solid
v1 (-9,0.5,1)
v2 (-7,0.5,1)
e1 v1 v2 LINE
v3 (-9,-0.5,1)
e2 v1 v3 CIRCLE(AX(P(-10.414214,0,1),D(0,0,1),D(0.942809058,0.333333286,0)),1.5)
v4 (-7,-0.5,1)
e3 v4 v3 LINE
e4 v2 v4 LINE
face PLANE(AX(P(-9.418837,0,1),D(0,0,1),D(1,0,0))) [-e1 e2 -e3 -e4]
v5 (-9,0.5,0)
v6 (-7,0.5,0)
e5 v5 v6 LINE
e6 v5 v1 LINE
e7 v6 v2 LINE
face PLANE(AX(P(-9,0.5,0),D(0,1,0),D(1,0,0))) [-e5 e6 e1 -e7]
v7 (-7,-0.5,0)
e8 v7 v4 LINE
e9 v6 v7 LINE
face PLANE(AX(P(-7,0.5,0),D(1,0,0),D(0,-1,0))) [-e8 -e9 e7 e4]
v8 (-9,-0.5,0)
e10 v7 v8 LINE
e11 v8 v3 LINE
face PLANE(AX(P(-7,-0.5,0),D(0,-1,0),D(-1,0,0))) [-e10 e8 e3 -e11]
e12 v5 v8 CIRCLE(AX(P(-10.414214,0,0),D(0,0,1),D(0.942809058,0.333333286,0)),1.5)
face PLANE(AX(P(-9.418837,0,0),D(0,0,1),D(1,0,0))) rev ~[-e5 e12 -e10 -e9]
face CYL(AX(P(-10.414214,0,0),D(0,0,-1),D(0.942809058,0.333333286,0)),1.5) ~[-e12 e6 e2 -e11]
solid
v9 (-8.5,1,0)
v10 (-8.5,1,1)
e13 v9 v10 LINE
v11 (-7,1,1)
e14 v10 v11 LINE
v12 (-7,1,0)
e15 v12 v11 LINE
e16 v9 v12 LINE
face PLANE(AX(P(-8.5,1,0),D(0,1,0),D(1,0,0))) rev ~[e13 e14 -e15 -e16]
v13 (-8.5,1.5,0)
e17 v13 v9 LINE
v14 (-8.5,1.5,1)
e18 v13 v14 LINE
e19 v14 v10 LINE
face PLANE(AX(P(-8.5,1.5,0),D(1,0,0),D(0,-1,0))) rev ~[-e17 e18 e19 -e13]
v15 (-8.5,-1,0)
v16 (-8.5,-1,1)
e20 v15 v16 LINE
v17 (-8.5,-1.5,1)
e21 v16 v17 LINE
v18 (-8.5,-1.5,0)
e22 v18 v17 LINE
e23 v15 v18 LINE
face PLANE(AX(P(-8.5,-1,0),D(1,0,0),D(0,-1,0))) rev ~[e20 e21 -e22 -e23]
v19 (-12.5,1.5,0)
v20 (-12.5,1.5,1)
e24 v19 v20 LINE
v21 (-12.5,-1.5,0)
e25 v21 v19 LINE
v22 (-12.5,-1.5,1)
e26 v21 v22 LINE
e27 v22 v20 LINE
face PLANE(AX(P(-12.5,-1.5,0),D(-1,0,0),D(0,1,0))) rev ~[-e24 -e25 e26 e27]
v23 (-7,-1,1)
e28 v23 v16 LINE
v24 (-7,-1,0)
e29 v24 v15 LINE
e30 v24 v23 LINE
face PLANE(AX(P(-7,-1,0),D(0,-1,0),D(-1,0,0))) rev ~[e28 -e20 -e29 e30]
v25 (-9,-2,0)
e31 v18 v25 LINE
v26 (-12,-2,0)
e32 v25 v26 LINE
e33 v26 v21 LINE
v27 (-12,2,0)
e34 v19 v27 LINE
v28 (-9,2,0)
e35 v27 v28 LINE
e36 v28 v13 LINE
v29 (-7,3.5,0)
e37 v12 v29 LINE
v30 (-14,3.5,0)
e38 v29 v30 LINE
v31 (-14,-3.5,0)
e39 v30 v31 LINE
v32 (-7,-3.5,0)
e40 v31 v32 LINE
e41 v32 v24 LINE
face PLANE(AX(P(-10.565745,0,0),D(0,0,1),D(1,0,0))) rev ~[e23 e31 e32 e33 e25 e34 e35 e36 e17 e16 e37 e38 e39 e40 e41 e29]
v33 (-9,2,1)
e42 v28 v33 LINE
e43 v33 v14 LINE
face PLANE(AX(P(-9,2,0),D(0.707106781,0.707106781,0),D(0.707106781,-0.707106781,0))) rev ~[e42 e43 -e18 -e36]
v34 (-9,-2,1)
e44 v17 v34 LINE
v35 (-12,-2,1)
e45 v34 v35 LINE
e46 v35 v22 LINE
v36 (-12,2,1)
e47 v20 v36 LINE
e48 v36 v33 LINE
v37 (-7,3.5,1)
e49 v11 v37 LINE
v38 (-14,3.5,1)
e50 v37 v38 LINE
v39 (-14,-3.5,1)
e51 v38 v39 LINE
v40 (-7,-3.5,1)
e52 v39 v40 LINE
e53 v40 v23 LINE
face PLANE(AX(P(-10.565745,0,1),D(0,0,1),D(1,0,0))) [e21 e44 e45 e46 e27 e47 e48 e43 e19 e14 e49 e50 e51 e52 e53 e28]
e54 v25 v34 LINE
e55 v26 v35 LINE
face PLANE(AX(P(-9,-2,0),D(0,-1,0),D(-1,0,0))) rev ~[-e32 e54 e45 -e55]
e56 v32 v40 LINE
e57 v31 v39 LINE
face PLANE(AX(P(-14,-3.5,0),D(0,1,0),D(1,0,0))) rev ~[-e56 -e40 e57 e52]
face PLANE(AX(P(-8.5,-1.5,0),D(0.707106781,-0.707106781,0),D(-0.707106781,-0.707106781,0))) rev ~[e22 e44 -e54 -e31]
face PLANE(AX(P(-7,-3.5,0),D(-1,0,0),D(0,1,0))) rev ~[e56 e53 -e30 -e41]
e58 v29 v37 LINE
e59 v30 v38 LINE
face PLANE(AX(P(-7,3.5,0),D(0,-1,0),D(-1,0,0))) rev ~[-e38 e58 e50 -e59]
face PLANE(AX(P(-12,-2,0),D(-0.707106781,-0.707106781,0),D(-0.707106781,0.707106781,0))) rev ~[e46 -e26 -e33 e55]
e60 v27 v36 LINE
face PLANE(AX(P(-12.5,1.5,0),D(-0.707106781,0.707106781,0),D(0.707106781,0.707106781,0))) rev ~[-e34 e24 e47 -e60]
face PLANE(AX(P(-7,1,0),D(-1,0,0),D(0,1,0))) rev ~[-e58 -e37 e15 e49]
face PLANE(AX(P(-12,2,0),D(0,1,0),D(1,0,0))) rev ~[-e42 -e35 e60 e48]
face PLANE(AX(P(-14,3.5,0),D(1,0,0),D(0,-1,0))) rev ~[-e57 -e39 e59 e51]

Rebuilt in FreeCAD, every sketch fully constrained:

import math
import FreeCAD as App
import Part
import Sketcher
from FreeCAD import Vector
Q = App.Units.Quantity

doc = App.newDocument("Part")
body = doc.addObject("PartDesign::Body", "Body")

sketch1 = body.newObject("Sketcher::SketchObject", "Sketch")
sketch1.AttachmentSupport = (doc.getObject("XY_Plane"), [""])
sketch1.MapMode = "FlatFace"
sketch1.addGeometry([
    Part.LineSegment(Vector(-8.5, 1, 0), Vector(-7, 1, 0)),
    Part.LineSegment(Vector(-7, 1, 0), Vector(-7, 3.5, 0)),
    Part.LineSegment(Vector(-7, 3.5, 0), Vector(-14, 3.5, 0)),
    Part.LineSegment(Vector(-14, 3.5, 0), Vector(-14, -3.5, 0)),
    Part.LineSegment(Vector(-14, -3.5, 0), Vector(-7, -3.5, 0)),
    Part.LineSegment(Vector(-7, -3.5, 0), Vector(-7, -1, 0)),
    Part.LineSegment(Vector(-7, -1, 0), Vector(-8.5, -1, 0)),
    Part.LineSegment(Vector(-8.5, -1, 0), Vector(-8.5, -1.5, 0)),
    Part.LineSegment(Vector(-8.5, -1.5, 0), Vector(-9, -2, 0)),
    Part.LineSegment(Vector(-9, -2, 0), Vector(-12, -2, 0)),
    Part.LineSegment(Vector(-12, -2, 0), Vector(-12.5, -1.5, 0)),
    Part.LineSegment(Vector(-12.5, -1.5, 0), Vector(-12.5, 1.5, 0)),
    Part.LineSegment(Vector(-12.5, 1.5, 0), Vector(-12, 2, 0)),
    Part.LineSegment(Vector(-12, 2, 0), Vector(-9, 2, 0)),
    Part.LineSegment(Vector(-9, 2, 0), Vector(-8.5, 1.5, 0)),
    Part.LineSegment(Vector(-8.5, 1.5, 0), Vector(-8.5, 1, 0)),
], False)
sketch1.addConstraint([
    Sketcher.Constraint("Coincident", 0, 2, 1, 1),
    Sketcher.Constraint("Coincident", 1, 2, 2, 1),
    Sketcher.Constraint("Coincident", 2, 2, 3, 1),
    Sketcher.Constraint("Coincident", 3, 2, 4, 1),
    Sketcher.Constraint("Coincident", 4, 2, 5, 1),
    Sketcher.Constraint("Coincident", 5, 2, 6, 1),
    Sketcher.Constraint("Coincident", 6, 2, 7, 1),
    Sketcher.Constraint("Coincident", 7, 2, 8, 1),
    Sketcher.Constraint("Coincident", 8, 2, 9, 1),
    Sketcher.Constraint("Coincident", 9, 2, 10, 1),
    Sketcher.Constraint("Coincident", 10, 2, 11, 1),
    Sketcher.Constraint("Coincident", 11, 2, 12, 1),
    Sketcher.Constraint("Coincident", 12, 2, 13, 1),
    Sketcher.Constraint("Coincident", 13, 2, 14, 1),
    Sketcher.Constraint("Coincident", 14, 2, 15, 1),
    Sketcher.Constraint("Coincident", 15, 2, 0, 1),
    Sketcher.Constraint("Horizontal", 0),
    Sketcher.Constraint("Vertical", 1),
    Sketcher.Constraint("Horizontal", 2),
    Sketcher.Constraint("Vertical", 3),
    Sketcher.Constraint("Horizontal", 4),
    Sketcher.Constraint("Vertical", 5),
    Sketcher.Constraint("Horizontal", 6),
    Sketcher.Constraint("Vertical", 7),
    Sketcher.Constraint("Horizontal", 9),
    Sketcher.Constraint("Vertical", 11),
    Sketcher.Constraint("Horizontal", 13),
    Sketcher.Constraint("Vertical", 15),
    Sketcher.Constraint("Symmetric", 1, 2, 4, 2, -1),
    Sketcher.Constraint("Symmetric", 9, 2, 12, 2, -1),
    Sketcher.Constraint("Symmetric", 7, 2, 14, 2, -1),
    Sketcher.Constraint("Perpendicular", 8, 10),
    Sketcher.Constraint("Perpendicular", 10, 12),
    Sketcher.Constraint("Perpendicular", 12, 14),
    Sketcher.Constraint("Horizontal", 7, 2, 10, 2),
    Sketcher.Constraint("Horizontal", 11, 2, 14, 2),
    Sketcher.Constraint("Equal", 4, 3),
    Sketcher.Constraint("Equal", 1, 5),
    Sketcher.Constraint("Equal", 13, 11),
    Sketcher.Constraint("DistanceX", 2, 2, 2, 1, Q("7 mm")),
    Sketcher.Constraint("DistanceX", 9, 2, 9, 1, Q("3 mm")),
    Sketcher.Constraint("DistanceX", 0, 1, 0, 2, Q("1.5 mm")),
    Sketcher.Constraint("DistanceY", 1, 1, 1, 2, Q("2.5 mm")),
    Sketcher.Constraint("DistanceX", 0, 2, -1, 1, Q("7 mm")),
    Sketcher.Constraint("DistanceX", 8, 2, -1, 1, Q("9 mm")),
])
pad1 = body.newObject("PartDesign::Pad", "Pad")
pad1.Profile = sketch1
pad1.Length = 1
body2 = doc.addObject("PartDesign::Body", "Body001")

sketch2 = body2.newObject("Sketcher::SketchObject", "Sketch001")
sketch2.AttachmentSupport = (doc.getObject("XY_Plane001"), [""])
sketch2.MapMode = "FlatFace"
sketch2.addGeometry([
    Part.ArcOfCircle(Part.Circle(Vector(-10.4, 0, 0), Vector(0, 0, 1), 1.5), math.radians(19), math.radians(341)),
    Part.LineSegment(Vector(-9, -0.5, 0), Vector(-7, -0.5, 0)),
    Part.LineSegment(Vector(-7, -0.5, 0), Vector(-7, 0.5, 0)),
    Part.LineSegment(Vector(-7, 0.5, 0), Vector(-9, 0.5, 0)),
], False)
sketch2.addConstraint([
    Sketcher.Constraint("Coincident", 0, 2, 1, 1),
    Sketcher.Constraint("Coincident", 1, 2, 2, 1),
    Sketcher.Constraint("Coincident", 2, 2, 3, 1),
    Sketcher.Constraint("Coincident", 3, 2, 0, 1),
    Sketcher.Constraint("Horizontal", 1),
    Sketcher.Constraint("Vertical", 2),
    Sketcher.Constraint("Horizontal", 3),
    Sketcher.Constraint("Symmetric", 0, 2, 3, 2, -1),
    Sketcher.Constraint("Radius", 0, Q("1.5 mm")),
    Sketcher.Constraint("DistanceX", 1, 1, 1, 2, Q("2 mm")),
    Sketcher.Constraint("DistanceY", 2, 1, 2, 2, Q("1 mm")),
    Sketcher.Constraint("DistanceX", 0, 2, -1, 1, Q("9 mm")),
])
pad2 = body2.newObject("PartDesign::Pad", "Pad001")
pad2.Profile = sketch2
pad2.Length = 1

doc.recompute()
